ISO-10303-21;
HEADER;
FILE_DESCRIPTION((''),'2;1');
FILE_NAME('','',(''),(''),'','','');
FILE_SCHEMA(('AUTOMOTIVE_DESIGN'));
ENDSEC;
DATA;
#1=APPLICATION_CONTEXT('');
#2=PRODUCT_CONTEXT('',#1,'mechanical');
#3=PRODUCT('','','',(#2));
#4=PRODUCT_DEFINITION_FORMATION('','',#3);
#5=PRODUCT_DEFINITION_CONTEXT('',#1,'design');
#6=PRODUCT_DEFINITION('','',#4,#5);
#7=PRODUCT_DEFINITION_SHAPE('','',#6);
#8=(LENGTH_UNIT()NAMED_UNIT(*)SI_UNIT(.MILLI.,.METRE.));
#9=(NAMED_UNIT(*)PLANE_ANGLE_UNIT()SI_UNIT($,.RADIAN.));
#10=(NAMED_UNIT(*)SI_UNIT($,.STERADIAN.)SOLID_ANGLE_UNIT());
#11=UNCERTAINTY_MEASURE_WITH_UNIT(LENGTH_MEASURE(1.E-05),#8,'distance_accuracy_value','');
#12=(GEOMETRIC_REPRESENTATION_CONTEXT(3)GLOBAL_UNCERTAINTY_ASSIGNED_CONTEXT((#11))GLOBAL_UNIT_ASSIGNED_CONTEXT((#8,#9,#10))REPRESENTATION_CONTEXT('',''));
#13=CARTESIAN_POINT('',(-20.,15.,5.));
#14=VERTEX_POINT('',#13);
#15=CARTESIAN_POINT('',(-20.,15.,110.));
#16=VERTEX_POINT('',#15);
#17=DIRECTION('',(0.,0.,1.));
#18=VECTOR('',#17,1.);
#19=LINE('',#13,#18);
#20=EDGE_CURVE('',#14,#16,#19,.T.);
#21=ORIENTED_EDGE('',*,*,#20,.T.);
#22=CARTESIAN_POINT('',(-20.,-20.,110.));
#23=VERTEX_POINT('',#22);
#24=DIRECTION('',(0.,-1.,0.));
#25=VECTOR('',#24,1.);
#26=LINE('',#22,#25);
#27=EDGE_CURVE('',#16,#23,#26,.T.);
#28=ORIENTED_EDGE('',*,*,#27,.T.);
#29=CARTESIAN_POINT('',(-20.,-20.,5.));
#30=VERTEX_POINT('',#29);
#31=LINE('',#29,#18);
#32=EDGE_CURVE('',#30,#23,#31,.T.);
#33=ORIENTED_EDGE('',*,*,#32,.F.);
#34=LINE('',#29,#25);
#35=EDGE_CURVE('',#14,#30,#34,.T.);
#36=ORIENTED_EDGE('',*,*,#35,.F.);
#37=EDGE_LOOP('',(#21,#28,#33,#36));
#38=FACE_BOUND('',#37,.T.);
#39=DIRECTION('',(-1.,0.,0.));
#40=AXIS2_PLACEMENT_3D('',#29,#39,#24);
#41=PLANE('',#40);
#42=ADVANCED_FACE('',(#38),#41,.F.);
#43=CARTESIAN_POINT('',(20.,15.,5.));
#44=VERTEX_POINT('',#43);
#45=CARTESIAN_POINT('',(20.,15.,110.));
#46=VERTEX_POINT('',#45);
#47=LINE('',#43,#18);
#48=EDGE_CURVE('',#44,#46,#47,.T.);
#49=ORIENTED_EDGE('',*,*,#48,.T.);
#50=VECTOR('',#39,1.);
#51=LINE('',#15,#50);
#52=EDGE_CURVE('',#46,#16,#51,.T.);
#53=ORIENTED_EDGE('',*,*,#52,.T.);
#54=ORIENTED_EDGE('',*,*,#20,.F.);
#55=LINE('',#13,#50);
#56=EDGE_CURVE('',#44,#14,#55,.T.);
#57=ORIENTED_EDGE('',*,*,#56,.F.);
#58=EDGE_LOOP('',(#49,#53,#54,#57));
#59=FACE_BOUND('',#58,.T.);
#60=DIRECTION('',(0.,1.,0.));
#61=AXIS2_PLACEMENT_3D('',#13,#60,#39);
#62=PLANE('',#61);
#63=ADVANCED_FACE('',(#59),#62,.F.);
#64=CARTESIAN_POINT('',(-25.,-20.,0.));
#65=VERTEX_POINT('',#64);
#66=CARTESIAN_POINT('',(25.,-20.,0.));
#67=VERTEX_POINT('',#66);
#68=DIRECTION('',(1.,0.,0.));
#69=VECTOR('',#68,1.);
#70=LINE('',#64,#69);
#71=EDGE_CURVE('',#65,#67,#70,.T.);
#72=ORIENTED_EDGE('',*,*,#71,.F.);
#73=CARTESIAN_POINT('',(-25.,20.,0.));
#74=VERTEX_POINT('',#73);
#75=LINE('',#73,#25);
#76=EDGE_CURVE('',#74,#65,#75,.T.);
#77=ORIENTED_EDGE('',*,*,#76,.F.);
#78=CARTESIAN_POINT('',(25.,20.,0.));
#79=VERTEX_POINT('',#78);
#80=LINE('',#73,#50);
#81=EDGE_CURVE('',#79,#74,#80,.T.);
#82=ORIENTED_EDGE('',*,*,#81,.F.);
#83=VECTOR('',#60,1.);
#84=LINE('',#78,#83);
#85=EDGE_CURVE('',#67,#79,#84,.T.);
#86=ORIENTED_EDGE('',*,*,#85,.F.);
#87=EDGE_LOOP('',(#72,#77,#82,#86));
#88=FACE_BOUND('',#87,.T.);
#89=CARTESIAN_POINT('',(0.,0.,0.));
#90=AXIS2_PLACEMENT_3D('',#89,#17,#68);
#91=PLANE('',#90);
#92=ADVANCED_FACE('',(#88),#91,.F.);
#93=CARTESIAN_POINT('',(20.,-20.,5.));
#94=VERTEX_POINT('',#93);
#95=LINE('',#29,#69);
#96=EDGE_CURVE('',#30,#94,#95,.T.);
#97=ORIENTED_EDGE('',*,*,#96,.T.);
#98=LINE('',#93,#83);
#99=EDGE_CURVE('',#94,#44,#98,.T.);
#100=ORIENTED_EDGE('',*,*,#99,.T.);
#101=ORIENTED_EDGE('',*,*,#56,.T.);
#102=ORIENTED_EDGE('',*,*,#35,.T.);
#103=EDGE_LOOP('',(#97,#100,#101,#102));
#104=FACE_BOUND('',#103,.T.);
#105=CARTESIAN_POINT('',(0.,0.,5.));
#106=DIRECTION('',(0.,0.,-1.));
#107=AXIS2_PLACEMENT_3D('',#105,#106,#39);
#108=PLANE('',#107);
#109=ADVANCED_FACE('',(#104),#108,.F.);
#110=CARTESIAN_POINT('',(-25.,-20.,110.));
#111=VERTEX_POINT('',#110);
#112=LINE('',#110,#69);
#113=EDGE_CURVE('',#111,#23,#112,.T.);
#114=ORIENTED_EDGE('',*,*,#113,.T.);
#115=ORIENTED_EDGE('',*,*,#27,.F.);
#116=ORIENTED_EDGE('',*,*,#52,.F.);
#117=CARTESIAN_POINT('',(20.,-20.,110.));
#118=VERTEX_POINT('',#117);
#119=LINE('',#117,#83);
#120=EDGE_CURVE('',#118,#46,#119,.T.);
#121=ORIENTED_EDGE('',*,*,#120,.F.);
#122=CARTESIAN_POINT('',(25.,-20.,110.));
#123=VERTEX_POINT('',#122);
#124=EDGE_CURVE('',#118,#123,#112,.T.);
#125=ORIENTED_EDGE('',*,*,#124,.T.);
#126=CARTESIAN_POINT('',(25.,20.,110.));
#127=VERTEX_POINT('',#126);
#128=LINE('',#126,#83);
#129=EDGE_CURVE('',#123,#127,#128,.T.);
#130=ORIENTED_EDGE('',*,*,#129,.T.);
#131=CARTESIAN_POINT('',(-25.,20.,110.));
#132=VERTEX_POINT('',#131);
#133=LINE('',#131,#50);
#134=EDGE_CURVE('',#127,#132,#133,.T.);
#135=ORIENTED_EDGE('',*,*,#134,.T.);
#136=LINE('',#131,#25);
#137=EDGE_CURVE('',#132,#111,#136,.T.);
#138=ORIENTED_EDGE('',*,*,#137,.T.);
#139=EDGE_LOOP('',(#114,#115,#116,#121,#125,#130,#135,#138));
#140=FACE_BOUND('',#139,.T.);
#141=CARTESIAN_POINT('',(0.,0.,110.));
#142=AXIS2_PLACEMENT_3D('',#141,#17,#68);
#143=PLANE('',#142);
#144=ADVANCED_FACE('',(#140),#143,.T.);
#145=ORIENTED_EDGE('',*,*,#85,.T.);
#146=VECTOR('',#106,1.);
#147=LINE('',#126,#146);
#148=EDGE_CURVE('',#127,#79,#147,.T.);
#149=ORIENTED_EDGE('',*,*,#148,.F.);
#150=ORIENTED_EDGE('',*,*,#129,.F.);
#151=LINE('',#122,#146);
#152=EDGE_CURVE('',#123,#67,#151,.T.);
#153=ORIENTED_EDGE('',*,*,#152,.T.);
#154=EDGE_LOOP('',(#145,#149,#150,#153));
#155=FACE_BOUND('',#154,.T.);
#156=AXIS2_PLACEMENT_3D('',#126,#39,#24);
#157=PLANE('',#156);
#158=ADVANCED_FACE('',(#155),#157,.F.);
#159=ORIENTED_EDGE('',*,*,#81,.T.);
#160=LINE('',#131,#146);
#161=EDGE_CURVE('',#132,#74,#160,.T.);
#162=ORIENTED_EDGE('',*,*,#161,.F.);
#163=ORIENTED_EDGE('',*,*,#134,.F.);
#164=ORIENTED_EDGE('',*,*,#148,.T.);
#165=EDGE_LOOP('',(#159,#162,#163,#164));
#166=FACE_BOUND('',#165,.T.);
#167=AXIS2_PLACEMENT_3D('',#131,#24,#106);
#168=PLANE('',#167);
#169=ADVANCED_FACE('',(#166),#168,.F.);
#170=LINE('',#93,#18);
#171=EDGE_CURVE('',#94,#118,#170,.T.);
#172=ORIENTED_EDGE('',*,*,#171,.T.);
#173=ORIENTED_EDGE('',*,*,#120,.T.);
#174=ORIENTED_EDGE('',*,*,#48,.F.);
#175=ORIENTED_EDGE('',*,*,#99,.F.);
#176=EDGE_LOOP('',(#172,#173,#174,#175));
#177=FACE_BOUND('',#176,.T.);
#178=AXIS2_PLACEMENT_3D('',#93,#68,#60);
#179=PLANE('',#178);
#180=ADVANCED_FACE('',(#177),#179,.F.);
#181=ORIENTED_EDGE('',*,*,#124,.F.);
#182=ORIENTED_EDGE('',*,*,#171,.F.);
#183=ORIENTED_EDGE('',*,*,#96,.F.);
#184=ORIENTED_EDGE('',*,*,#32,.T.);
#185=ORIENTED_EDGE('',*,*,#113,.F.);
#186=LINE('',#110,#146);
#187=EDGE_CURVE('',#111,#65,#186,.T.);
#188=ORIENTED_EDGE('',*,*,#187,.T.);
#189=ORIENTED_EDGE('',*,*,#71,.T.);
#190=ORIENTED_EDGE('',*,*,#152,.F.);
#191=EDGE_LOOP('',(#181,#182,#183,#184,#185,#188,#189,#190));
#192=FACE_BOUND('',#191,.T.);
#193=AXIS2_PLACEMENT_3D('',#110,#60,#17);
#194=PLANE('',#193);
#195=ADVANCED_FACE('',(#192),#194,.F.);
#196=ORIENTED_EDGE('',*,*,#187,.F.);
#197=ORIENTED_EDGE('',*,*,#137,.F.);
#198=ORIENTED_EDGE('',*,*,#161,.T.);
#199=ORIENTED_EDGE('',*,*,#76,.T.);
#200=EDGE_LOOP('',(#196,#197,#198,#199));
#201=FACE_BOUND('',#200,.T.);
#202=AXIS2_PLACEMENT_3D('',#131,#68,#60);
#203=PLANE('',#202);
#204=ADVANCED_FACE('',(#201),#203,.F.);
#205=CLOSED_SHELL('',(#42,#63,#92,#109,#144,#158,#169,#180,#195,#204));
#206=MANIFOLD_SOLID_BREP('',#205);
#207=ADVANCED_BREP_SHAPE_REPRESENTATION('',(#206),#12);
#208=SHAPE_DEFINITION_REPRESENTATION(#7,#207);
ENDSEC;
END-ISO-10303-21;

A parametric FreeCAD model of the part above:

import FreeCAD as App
import Part
import Sketcher
from FreeCAD import Vector

doc = App.newDocument("Part")
params = doc.addObject("Spreadsheet::Sheet", "Params")
for row, (alias, value) in enumerate([
    ("sketch1_width", "50 mm"),
    ("sketch1_height", "40 mm"),
    ("pad1_length", "110 mm"),
    ("sketch2_width", "40 mm"),
    ("sketch2_height", "35 mm"),
    ("pocket1_length", "105 mm"),
], start=1):
    params.set(f"A{row}", alias)
    params.set(f"B{row}", "=" + value)
    params.setAlias(f"B{row}", alias)

body = doc.addObject("PartDesign::Body", "Body")

sketch1 = body.newObject("Sketcher::SketchObject", "Sketch")
sketch1.AttachmentSupport = (doc.getObject("XY_Plane"), [""])
sketch1.MapMode = "FlatFace"
sketch1.addGeometry([
    Part.LineSegment(Vector(-25, 20, 0), Vector(-25, -20, 0)),
    Part.LineSegment(Vector(-25, -20, 0), Vector(25, -20, 0)),
    Part.LineSegment(Vector(25, -20, 0), Vector(25, 20, 0)),
    Part.LineSegment(Vector(25, 20, 0), Vector(-25, 20, 0)),
], False)
sketch1.addConstraint([
    Sketcher.Constraint("Coincident", 0, 2, 1, 1),
    Sketcher.Constraint("Coincident", 1, 2, 2, 1),
    Sketcher.Constraint("Coincident", 2, 2, 3, 1),
    Sketcher.Constraint("Coincident", 3, 2, 0, 1),
    Sketcher.Constraint("Vertical", 0),
    Sketcher.Constraint("Horizontal", 1),
    Sketcher.Constraint("Vertical", 2),
    Sketcher.Constraint("Horizontal", 3),
    Sketcher.Constraint("Symmetric", 0, 2, 2, 2, -1, 1),
    Sketcher.Constraint("DistanceX", 1, 1, 1, 2, 50.0),
    Sketcher.Constraint("DistanceY", 0, 2, 0, 1, 40.0),
])
sketch1.setExpression("Constraints[9]", "Params.sketch1_width")
sketch1.setExpression("Constraints[10]", "Params.sketch1_height")
pad1 = body.newObject("PartDesign::Pad", "Pad")
pad1.Profile = sketch1
pad1.setExpression("Length", "Params.pad1_length")

sketch2 = body.newObject("Sketcher::SketchObject", "Sketch001")
sketch2.AttachmentSupport = (doc.getObject("XY_Plane"), [""])
sketch2.MapMode = "FlatFace"
sketch2.AttachmentOffset = App.Placement(Vector(0, 0, 110), App.Rotation())
sketch2.addGeometry([
    Part.LineSegment(Vector(-20, 15, 0), Vector(-20, -20, 0)),
    Part.LineSegment(Vector(-20, -20, 0), Vector(20, -20, 0)),
    Part.LineSegment(Vector(20, -20, 0), Vector(20, 15, 0)),
    Part.LineSegment(Vector(20, 15, 0), Vector(-20, 15, 0)),
], False)
sketch2.addConstraint([
    Sketcher.Constraint("Coincident", 0, 2, 1, 1),
    Sketcher.Constraint("Coincident", 1, 2, 2, 1),
    Sketcher.Constraint("Coincident", 2, 2, 3, 1),
    Sketcher.Constraint("Coincident", 3, 2, 0, 1),
    Sketcher.Constraint("Vertical", 0),
    Sketcher.Constraint("Horizontal", 1),
    Sketcher.Constraint("Vertical", 2),
    Sketcher.Constraint("Horizontal", 3),
    Sketcher.Constraint("DistanceX", 1, 1, 1, 2, 40.0),
    Sketcher.Constraint("DistanceY", 0, 2, 0, 1, 35.0),
    Sketcher.Constraint("DistanceX", 0, 2, -1, 1, 20.0),
    Sketcher.Constraint("DistanceY", 0, 2, -1, 1, 20.0),
])
sketch2.setExpression("Constraints[8]", "Params.sketch2_width")
sketch2.setExpression("Constraints[9]", "Params.sketch2_height")
pocket1 = body.newObject("PartDesign::Pocket", "Pocket")
pocket1.Profile = sketch2
pocket1.setExpression("Length", "Params.pocket1_length")

doc.recompute()
